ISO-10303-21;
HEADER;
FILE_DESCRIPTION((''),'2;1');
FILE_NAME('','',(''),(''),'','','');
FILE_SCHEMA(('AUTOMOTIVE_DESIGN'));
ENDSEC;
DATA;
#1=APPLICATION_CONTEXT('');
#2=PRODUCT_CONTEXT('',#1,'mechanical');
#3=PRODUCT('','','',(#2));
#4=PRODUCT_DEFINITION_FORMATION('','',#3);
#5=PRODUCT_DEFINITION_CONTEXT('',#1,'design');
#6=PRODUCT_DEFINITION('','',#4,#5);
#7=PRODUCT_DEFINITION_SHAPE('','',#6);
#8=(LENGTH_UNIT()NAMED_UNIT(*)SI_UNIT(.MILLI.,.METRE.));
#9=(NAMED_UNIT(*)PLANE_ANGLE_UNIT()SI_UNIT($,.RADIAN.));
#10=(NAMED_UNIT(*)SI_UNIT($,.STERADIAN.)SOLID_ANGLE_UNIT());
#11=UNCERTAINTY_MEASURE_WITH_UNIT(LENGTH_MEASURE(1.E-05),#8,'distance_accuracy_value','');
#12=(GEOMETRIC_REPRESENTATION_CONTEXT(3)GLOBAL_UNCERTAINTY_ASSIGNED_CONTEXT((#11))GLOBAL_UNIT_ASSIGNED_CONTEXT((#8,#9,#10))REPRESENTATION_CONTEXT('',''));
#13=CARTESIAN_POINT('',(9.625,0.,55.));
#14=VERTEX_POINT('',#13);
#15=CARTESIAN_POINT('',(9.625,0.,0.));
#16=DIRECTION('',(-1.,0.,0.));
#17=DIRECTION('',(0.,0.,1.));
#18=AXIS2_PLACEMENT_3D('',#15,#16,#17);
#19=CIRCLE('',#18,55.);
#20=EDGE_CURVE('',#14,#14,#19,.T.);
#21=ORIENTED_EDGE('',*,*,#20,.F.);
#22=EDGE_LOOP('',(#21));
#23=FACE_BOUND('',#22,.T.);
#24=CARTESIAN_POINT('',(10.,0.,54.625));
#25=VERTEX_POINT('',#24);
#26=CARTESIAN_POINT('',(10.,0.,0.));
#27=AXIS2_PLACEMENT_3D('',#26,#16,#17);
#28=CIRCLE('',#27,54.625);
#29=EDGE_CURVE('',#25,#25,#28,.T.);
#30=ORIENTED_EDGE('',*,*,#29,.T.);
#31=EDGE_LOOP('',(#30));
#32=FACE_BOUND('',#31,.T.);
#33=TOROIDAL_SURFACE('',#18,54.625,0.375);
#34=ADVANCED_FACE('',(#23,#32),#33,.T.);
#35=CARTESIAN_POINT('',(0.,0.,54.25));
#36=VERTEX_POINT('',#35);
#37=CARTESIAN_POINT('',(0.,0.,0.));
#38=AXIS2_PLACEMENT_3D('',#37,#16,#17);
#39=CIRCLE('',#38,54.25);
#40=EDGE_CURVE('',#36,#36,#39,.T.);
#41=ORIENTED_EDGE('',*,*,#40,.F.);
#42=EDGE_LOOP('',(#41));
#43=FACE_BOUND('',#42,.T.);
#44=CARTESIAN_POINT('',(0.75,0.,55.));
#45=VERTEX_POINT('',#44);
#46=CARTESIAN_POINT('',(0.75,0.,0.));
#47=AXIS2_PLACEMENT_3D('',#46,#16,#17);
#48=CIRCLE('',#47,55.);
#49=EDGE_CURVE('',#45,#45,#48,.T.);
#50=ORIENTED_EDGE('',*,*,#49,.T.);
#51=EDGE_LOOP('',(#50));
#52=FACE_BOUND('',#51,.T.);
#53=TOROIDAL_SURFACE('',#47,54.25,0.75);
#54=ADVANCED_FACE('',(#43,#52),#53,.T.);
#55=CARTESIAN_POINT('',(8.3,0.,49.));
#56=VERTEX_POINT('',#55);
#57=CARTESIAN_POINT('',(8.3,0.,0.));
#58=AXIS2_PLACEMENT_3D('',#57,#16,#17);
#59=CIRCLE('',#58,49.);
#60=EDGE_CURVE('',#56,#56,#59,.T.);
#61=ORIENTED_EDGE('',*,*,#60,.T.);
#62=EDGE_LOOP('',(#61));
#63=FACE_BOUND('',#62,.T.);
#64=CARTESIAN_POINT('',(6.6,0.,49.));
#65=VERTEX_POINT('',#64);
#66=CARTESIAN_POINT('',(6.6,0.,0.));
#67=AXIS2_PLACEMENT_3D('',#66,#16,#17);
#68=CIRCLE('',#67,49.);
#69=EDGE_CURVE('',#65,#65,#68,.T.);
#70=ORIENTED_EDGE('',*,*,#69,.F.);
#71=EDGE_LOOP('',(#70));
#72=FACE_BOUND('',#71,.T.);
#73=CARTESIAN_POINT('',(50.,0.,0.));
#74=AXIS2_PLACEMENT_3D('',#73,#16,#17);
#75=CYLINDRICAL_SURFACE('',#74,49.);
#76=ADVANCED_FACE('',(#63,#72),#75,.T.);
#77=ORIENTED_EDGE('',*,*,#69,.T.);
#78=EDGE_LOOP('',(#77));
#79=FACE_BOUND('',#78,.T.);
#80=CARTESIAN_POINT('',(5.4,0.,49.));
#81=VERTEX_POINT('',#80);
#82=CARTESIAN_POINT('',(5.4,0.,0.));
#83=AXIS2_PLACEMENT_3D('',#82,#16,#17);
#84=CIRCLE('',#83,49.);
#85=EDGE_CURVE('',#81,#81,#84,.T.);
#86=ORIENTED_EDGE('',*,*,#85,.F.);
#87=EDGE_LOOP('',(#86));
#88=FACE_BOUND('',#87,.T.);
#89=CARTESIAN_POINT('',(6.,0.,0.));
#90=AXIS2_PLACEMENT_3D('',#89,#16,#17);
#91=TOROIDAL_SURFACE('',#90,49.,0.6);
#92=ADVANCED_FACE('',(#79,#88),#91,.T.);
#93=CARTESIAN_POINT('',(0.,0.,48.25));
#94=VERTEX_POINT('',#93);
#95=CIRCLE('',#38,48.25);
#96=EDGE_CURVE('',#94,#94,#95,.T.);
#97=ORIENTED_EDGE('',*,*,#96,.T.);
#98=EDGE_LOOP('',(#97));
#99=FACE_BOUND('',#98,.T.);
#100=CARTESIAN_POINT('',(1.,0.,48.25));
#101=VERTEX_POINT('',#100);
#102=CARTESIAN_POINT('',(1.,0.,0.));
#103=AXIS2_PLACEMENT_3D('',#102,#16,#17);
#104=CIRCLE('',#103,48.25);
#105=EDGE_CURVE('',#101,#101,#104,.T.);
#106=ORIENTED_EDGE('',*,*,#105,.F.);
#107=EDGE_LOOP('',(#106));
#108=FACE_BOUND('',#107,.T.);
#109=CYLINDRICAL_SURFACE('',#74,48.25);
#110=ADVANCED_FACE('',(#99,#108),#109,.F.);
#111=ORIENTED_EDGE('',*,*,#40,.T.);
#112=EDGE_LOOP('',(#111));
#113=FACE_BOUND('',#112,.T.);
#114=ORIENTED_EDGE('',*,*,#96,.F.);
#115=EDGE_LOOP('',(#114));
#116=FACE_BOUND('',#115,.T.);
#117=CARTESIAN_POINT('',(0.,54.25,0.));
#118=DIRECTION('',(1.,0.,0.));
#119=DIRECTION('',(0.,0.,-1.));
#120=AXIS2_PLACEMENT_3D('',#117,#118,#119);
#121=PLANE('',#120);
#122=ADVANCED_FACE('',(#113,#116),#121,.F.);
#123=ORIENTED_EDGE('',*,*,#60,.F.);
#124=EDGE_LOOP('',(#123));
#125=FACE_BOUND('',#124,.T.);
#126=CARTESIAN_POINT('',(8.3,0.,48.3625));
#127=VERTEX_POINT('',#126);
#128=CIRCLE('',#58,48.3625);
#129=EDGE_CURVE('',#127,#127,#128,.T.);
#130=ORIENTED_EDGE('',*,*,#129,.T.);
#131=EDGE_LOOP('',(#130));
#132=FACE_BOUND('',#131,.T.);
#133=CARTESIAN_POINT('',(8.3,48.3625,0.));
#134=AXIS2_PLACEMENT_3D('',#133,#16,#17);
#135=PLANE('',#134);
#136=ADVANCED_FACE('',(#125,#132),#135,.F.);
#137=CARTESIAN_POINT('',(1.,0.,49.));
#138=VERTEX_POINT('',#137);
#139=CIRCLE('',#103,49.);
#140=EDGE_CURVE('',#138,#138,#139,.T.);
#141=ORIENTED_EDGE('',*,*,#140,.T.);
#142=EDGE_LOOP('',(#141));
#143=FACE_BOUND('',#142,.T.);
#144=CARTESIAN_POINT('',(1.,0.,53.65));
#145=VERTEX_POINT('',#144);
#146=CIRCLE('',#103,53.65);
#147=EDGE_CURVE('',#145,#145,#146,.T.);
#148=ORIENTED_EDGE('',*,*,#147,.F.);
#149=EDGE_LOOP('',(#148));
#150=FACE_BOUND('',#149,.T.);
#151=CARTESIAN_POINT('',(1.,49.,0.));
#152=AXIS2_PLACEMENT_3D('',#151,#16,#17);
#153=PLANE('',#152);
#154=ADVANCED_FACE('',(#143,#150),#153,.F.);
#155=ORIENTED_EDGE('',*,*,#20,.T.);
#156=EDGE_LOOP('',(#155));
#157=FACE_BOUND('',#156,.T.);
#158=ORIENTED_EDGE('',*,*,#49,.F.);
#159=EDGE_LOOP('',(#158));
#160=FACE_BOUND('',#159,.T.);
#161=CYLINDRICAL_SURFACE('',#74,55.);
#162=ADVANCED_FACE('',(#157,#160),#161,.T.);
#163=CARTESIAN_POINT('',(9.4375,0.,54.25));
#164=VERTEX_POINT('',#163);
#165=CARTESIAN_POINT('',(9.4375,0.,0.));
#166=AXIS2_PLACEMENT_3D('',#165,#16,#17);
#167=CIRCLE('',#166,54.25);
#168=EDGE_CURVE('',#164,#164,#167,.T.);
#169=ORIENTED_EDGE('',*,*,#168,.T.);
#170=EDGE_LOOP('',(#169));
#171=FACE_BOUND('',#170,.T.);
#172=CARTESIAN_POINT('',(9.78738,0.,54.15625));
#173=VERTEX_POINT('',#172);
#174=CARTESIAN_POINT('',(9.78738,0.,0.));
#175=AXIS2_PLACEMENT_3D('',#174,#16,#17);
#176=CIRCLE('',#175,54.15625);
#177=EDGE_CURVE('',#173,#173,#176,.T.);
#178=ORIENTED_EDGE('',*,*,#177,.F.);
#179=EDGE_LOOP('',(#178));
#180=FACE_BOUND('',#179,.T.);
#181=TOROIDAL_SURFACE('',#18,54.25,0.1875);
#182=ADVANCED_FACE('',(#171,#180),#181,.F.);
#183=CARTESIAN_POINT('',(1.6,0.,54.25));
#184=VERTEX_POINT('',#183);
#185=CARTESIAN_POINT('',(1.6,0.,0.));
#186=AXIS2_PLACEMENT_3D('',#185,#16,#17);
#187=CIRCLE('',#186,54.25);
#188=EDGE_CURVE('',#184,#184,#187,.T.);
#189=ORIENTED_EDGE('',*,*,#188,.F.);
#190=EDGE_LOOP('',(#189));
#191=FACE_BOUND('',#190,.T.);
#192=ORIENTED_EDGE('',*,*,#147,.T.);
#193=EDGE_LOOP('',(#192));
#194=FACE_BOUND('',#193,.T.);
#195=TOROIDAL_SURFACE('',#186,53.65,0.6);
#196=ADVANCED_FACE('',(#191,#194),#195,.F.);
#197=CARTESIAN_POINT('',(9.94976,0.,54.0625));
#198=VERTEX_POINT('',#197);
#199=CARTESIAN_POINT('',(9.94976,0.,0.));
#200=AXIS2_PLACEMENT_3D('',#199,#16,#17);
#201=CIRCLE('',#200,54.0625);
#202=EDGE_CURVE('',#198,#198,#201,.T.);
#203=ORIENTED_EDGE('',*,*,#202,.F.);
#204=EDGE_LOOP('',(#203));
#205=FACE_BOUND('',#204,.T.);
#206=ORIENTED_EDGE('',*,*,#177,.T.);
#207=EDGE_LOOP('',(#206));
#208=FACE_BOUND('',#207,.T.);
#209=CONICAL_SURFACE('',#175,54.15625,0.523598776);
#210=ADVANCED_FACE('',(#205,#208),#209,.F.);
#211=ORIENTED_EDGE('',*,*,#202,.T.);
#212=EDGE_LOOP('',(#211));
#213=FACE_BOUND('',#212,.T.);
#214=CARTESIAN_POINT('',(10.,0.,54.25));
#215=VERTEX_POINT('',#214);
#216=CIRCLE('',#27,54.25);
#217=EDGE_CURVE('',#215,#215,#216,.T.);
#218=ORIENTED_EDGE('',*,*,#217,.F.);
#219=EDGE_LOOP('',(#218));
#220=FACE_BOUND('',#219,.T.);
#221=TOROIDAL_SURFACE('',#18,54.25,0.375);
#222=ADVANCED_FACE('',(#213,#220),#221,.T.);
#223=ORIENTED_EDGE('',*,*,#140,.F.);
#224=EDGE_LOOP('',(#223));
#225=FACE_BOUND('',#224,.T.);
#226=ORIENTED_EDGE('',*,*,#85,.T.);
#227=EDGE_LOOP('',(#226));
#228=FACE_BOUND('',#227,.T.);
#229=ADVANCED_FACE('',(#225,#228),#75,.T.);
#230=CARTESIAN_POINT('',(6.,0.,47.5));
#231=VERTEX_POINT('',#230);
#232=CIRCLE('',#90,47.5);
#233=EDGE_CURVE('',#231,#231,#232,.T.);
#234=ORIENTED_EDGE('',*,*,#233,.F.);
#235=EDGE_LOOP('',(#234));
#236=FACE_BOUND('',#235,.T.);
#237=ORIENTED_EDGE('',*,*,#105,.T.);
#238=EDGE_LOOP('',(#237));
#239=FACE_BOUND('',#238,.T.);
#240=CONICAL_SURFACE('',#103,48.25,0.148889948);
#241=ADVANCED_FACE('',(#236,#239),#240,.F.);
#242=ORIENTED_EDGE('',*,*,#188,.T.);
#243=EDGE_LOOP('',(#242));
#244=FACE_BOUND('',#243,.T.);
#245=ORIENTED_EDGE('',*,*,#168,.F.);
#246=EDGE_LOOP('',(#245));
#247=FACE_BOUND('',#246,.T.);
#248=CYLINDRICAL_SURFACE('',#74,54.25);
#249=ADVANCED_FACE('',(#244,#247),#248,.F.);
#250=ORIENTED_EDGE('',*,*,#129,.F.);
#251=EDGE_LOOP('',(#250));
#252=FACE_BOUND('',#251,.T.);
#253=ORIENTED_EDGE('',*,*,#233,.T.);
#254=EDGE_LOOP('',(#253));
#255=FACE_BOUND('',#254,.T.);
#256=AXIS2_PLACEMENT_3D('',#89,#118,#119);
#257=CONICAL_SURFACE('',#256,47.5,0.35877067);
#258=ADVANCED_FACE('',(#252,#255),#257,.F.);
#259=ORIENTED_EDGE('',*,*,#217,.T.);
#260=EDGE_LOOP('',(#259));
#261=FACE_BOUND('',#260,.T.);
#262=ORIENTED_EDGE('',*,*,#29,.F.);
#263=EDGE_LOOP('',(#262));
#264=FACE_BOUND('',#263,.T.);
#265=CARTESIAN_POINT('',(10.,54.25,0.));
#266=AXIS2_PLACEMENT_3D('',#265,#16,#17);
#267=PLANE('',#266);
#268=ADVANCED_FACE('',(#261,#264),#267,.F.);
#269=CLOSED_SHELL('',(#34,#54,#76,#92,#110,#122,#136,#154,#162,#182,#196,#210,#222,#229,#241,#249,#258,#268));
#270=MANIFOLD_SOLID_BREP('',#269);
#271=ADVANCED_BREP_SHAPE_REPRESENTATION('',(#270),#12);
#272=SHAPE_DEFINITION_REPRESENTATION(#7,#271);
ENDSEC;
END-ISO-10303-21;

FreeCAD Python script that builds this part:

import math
import FreeCAD as App
import Part
import Sketcher

V = App.Vector
Q = App.Units.Quantity

doc = App.newDocument("Part")
body = doc.addObject("PartDesign::Body", "Body")

# Sketch on XY plane
sketch1 = body.newObject("Sketcher::SketchObject", "Sketch")
sketch1.AttachmentSupport = (doc.getObject("XY_Plane"), [""])
sketch1.MapMode = "FlatFace"
sketch1.addGeometry([
    Part.LineSegment(V(0, 54.25, 0), V(0, 48.25, 0)),  # 0
    Part.LineSegment(V(0, 48.25, 0), V(1, 48.25, 0)),  # 1
    Part.LineSegment(V(1, 48.25, 0), V(6, 47.5, 0)),  # 2
    Part.LineSegment(V(6, 47.5, 0), V(8.3, 48.36, 0)),  # 3
    Part.LineSegment(V(8.3, 48.36, 0), V(8.3, 49, 0)),  # 4
    Part.LineSegment(V(8.3, 49, 0), V(6.6, 49, 0)),  # 5
    Part.ArcOfCircle(Part.Circle(V(6, 49, 0), V(0, 0, 1), 0.6), math.radians(0), math.radians(180)),  # 6
    Part.LineSegment(V(5.4, 49, 0), V(1, 49, 0)),  # 7
    Part.LineSegment(V(1, 49, 0), V(1, 53.65, 0)),  # 8
    Part.ArcOfCircle(Part.Circle(V(1.6, 53.65, 0), V(0, 0, 1), 0.6), math.radians(90), math.radians(180)),  # 9
    Part.LineSegment(V(1.6, 54.25, 0), V(9.44, 54.25, 0)),  # 10
    Part.ArcOfCircle(Part.Circle(V(9.62, 54.25, 0), V(0, 0, 1), 0.19), math.radians(-30), math.radians(180)),  # 11
    Part.LineSegment(V(9.79, 54.16, 0), V(9.95, 54.06, 0)),  # 12
    Part.ArcOfCircle(Part.Circle(V(9.63, 54.25, 0), V(0, 0, 1), 0.37), math.radians(-30), math.radians(0)),  # 13
    Part.LineSegment(V(10, 54.25, 0), V(10, 54.62, 0)),  # 14
    Part.ArcOfCircle(Part.Circle(V(9.62, 54.62, 0), V(0, 0, 1), 0.38), math.radians(0), math.radians(90)),  # 15
    Part.LineSegment(V(9.62, 55, 0), V(0.75, 55, 0)),  # 16
    Part.ArcOfCircle(Part.Circle(V(0.75, 54.25, 0), V(0, 0, 1), 0.75), math.radians(90), math.radians(180)),  # 17
], False)
sketch1.addConstraint([
    Sketcher.Constraint("Coincident", 0, 2, 1, 1),
    Sketcher.Constraint("Coincident", 1, 2, 2, 1),
    Sketcher.Constraint("Coincident", 2, 2, 3, 1),
    Sketcher.Constraint("Coincident", 3, 2, 4, 1),
    Sketcher.Constraint("Coincident", 4, 2, 5, 1),
    Sketcher.Constraint("Coincident", 5, 2, 6, 1),
    Sketcher.Constraint("Coincident", 6, 2, 7, 1),
    Sketcher.Constraint("Coincident", 7, 2, 8, 1),
    Sketcher.Constraint("Tangent", 8, 2, 9, 2),
    Sketcher.Constraint("Tangent", 9, 1, 10, 1),
    Sketcher.Constraint("Coincident", 10, 2, 11, 2),
    Sketcher.Constraint("Coincident", 11, 1, 12, 1),
    Sketcher.Constraint("Coincident", 12, 2, 13, 1),
    Sketcher.Constraint("Tangent", 13, 2, 14, 1),
    Sketcher.Constraint("Tangent", 14, 2, 15, 1),
    Sketcher.Constraint("Tangent", 15, 2, 16, 1),
    Sketcher.Constraint("Tangent", 16, 2, 17, 1),
    Sketcher.Constraint("Tangent", 17, 2, 0, 1),
    Sketcher.Constraint("Vertical", 0),
    Sketcher.Constraint("Horizontal", 1),
    Sketcher.Constraint("Vertical", 4),
    Sketcher.Constraint("Horizontal", 5),
    Sketcher.Constraint("Horizontal", 7),
    Sketcher.Constraint("Vertical", 8),
    Sketcher.Constraint("Horizontal", 10),
    Sketcher.Constraint("Vertical", 14),
    Sketcher.Constraint("Horizontal", 16),
    Sketcher.Constraint("Coincident", 13, 3, 11, 3),
    Sketcher.Constraint("Equal", 6, 9),
    Sketcher.Constraint("Equal", 13, 15),
    Sketcher.Constraint("PointOnObject", 0, 2, -2),
    Sketcher.Constraint("Horizontal", 13, 3, 17, 3),
    Sketcher.Constraint("Horizontal", 6, 3, 4, 2),
    Sketcher.Constraint("Horizontal", 5, 2, 6, 2),
    Sketcher.Constraint("Horizontal", 17, 3, 9, 1),
    Sketcher.Constraint("Vertical", 6, 3, 2, 2),
    Sketcher.Constraint("Vertical", 1, 2, 7, 2),
    Sketcher.Constraint("Radius", 6, 0.6),
    Sketcher.Constraint("DistanceX", 1, 1, 1, 2, 1.0),
    Sketcher.Constraint("DistanceY", 0, 2, 0, 1, 6.0),
    Sketcher.Constraint("Angle", 12, Q("-30 deg")),
    Sketcher.Constraint("Radius", 17, 0.75),
    Sketcher.Constraint("DistanceX", 5, 2, 5, 1, 1.7),
    Sketcher.Constraint("DistanceX", 7, 2, 7, 1, 4.4),
    Sketcher.Constraint("DistanceY", -1, 1, 6, 3, 49.0),
    Sketcher.Constraint("DistanceX", -1, 1, 13, 2, 10.0),
    Sketcher.Constraint("DistanceY", -1, 1, 15, 2, 55.0),
    Sketcher.Constraint("Radius", 13, 0.375),
    Sketcher.Constraint("DistanceY", -1, 1, 2, 2, 47.5),
    Sketcher.Constraint("Radius", 11, 0.1875),
    Sketcher.Constraint("DistanceY", 4, 1, 4, 2, 0.6375),
    Sketcher.Constraint("DistanceY", -1, 1, 12, 2, 54.0625),
])
revolution = body.newObject("PartDesign::Revolution", "Revolution")
revolution.Profile = sketch1
revolution.ReferenceAxis = (sketch1, ["H_Axis"])
revolution.Angle = 360

doc.recompute()
